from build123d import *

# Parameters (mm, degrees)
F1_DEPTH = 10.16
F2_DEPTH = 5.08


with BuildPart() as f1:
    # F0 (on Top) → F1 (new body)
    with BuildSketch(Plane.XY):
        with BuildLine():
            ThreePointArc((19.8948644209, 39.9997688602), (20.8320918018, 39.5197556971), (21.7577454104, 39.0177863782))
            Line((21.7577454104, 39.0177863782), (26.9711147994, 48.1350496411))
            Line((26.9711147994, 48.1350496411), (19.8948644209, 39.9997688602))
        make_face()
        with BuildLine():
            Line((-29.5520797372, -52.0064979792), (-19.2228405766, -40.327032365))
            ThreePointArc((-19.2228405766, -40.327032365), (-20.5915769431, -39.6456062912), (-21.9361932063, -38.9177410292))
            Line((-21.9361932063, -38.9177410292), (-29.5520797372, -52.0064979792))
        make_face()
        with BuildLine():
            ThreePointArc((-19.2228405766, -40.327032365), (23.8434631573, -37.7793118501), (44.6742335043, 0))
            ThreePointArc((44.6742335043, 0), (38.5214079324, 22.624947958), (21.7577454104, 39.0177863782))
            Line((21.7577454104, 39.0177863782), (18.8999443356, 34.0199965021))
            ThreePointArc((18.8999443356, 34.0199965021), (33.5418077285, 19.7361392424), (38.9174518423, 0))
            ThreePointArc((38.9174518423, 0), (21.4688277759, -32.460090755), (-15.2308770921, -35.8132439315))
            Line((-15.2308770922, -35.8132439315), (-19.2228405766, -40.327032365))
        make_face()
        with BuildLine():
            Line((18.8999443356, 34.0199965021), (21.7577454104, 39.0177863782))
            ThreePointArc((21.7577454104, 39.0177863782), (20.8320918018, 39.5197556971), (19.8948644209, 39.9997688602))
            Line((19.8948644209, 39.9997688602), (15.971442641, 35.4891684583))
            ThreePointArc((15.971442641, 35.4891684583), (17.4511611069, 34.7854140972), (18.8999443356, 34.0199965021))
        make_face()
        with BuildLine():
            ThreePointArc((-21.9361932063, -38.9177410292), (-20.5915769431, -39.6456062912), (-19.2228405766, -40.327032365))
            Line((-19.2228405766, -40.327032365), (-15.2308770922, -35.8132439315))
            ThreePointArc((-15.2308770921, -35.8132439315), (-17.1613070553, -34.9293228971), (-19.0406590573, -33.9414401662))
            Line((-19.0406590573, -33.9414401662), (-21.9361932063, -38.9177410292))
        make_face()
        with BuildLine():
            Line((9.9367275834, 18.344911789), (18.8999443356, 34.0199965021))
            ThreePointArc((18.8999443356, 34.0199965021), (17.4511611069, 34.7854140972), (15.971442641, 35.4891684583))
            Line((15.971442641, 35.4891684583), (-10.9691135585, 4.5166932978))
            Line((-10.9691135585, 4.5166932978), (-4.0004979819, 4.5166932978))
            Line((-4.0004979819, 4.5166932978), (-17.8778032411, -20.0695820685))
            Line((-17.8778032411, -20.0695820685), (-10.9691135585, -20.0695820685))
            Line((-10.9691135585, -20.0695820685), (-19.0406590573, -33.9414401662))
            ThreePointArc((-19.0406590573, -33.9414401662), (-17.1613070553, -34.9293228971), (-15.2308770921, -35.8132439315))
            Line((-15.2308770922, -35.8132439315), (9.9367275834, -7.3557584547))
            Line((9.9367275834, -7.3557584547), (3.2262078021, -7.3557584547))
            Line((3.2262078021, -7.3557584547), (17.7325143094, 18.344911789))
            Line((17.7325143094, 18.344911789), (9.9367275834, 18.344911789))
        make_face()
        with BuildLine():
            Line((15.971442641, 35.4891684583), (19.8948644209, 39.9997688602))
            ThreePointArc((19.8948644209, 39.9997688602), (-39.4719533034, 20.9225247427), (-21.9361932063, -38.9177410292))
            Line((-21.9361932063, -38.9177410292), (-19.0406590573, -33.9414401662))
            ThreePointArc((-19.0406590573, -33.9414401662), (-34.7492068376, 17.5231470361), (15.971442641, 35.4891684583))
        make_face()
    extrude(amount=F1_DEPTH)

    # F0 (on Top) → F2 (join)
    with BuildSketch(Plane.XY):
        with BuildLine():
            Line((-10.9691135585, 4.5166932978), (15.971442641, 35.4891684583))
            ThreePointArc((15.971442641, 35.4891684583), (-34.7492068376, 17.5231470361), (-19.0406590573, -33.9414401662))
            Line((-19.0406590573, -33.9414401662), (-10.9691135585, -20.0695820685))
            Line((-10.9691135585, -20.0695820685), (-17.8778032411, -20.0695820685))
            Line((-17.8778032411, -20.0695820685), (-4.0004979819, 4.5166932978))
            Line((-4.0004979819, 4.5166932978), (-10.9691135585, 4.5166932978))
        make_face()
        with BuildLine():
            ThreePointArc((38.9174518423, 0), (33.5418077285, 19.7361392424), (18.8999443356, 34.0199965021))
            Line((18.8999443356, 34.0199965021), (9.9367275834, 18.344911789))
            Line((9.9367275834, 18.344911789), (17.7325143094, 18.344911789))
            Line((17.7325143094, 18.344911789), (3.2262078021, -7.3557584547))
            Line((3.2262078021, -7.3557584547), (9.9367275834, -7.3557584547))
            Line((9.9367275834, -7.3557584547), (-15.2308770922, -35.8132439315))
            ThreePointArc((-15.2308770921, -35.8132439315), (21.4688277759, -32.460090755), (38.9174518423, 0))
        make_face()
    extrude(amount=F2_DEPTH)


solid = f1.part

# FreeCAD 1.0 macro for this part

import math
import FreeCAD as App
import Part
import Sketcher
from FreeCAD import Vector
Q = App.Units.Quantity

doc = App.newDocument("Part")
body = doc.addObject("PartDesign::Body", "Body")

sketch1 = body.newObject("Sketcher::SketchObject", "Sketch")
sketch1.AttachmentSupport = (doc.getObject("XY_Plane"), [""])
sketch1.MapMode = "FlatFace"
sketch1.addGeometry([
    Part.LineSegment(Vector(22, 39, 0), Vector(27, 48, 0)),
    Part.LineSegment(Vector(27, 48, 0), Vector(20, 40, 0)),
    Part.ArcOfCircle(Part.Circle(Vector(0, 0, 0), Vector(0, 0, 1), 45), math.radians(64), math.radians(241)),
    Part.LineSegment(Vector(-22, -39, 0), Vector(-30, -52, 0)),
    Part.LineSegment(Vector(-30, -52, 0), Vector(-19, -40, 0)),
    Part.ArcOfCircle(Part.Circle(Vector(0, 0, 0), Vector(0, 0, 1), 45), math.radians(-115), math.radians(61)),
    Part.LineSegment(Vector(16, 35, 0), Vector(-11, 5, 0)),
    Part.LineSegment(Vector(-11, 5, 0), Vector(-4, 5, 0)),
    Part.LineSegment(Vector(-4, 5, 0), Vector(-18, -20, 0)),
    Part.LineSegment(Vector(-18, -20, 0), Vector(-11, -20, 0)),
    Part.LineSegment(Vector(-11, -20, 0), Vector(-19, -34, 0)),
    Part.ArcOfCircle(Part.Circle(Vector(0, 0, 0), Vector(0, 0, 1), 39), math.radians(66), math.radians(241)),
    Part.ArcOfCircle(Part.Circle(Vector(0, 0, 0), Vector(0, 0, 1), 39), math.radians(0), math.radians(61)),
    Part.ArcOfCircle(Part.Circle(Vector(0, 0, 0), Vector(0, 0, 1), 39), math.radians(-113), math.radians(0)),
    Part.LineSegment(Vector(-15, -36, 0), Vector(10, -7, 0)),
    Part.LineSegment(Vector(10, -7, 0), Vector(3, -7, 0)),
    Part.LineSegment(Vector(3, -7, 0), Vector(18, 18, 0)),
    Part.LineSegment(Vector(18, 18, 0), Vector(10, 18, 0)),
    Part.LineSegment(Vector(10, 18, 0), Vector(19, 34, 0)),
], False)
sketch1.addConstraint([
    Sketcher.Constraint("Coincident", 0, 2, 1, 1),
    Sketcher.Constraint("Coincident", 1, 2, 2, 1),
    Sketcher.Constraint("Coincident", 2, 2, 3, 1),
    Sketcher.Constraint("Coincident", 3, 2, 4, 1),
    Sketcher.Constraint("Coincident", 4, 2, 5, 1),
    Sketcher.Constraint("Coincident", 5, 2, 0, 1),
    Sketcher.Constraint("Coincident", 6, 2, 7, 1),
    Sketcher.Constraint("Coincident", 7, 2, 8, 1),
    Sketcher.Constraint("Coincident", 8, 2, 9, 1),
    Sketcher.Constraint("Coincident", 9, 2, 10, 1),
    Sketcher.Constraint("Coincident", 10, 2, 11, 2),
    Sketcher.Constraint("Coincident", 11, 1, 6, 1),
    Sketcher.Constraint("Tangent", 12, 1, 13, 2),
    Sketcher.Constraint("Coincident", 13, 1, 14, 1),
    Sketcher.Constraint("Coincident", 14, 2, 15, 1),
    Sketcher.Constraint("Coincident", 15, 2, 16, 1),
    Sketcher.Constraint("Coincident", 16, 2, 17, 1),
    Sketcher.Constraint("Coincident", 17, 2, 18, 1),
    Sketcher.Constraint("Coincident", 18, 2, 12, 2),
    Sketcher.Constraint("Horizontal", 7),
    Sketcher.Constraint("Horizontal", 9),
    Sketcher.Constraint("Horizontal", 15),
    Sketcher.Constraint("Horizontal", 17),
    Sketcher.Constraint("Coincident", 2, 3, -1, 1),
    Sketcher.Constraint("Coincident", 5, 3, -1, 1),
    Sketcher.Constraint("Coincident", 11, 3, -1, 1),
    Sketcher.Constraint("Coincident", 12, 3, -1, 1),
    Sketcher.Constraint("Equal", 2, 5),
    Sketcher.Constraint("Equal", 11, 12),
    Sketcher.Constraint("Equal", 12, 13),
    Sketcher.Constraint("PointOnObject", 12, 1, -1),
    Sketcher.Constraint("Parallel", 1, 6),
    Sketcher.Constraint("Parallel", 3, 10),
    Sketcher.Constraint("Parallel", 4, 14),
    Sketcher.Constraint("Parallel", 8, 16),
    Sketcher.Constraint("Parallel", 0, 18),
    Sketcher.Constraint("Vertical", 6, 2, 9, 2),
    Sketcher.Constraint("Vertical", 14, 2, 17, 2),
    Sketcher.Constraint("Radius", 11, 38.917452),
    Sketcher.Constraint("DistanceY", 3, 2, -1, 1, Q("2.0474999 in")),
    Sketcher.Constraint("DistanceX", 7, 2, -1, 1, Q("0.1574999 in")),
    Sketcher.Constraint("Radius", 2, 44.674234),
    Sketcher.Constraint("DistanceX", 9, 1, 9, 2, 6.90869),
    Sketcher.Constraint("DistanceX", 15, 2, 15, 1, 6.71052),
    Sketcher.Constraint("DistanceY", 2, 2, 10, 2, 4.976301),
    Sketcher.Constraint("DistanceY", 11, 1, 1, 2, 4.5106),
    Sketcher.Constraint("DistanceX", 11, 1, 18, 2, 2.928502),
    Sketcher.Constraint("DistanceX", 18, 2, 5, 2, 2.857801),
    Sketcher.Constraint("Distance", 6, 41.049821),
    Sketcher.Constraint("Distance", 8, 28.232331),
    Sketcher.Constraint("DistanceX", 7, 1, 7, 2, 6.968616),
    Sketcher.Constraint("DistanceX", 17, 2, 17, 1, 7.795787),
    Sketcher.Constraint("DistanceY", -1, 1, 0, 2, 48.13505),
    Sketcher.Constraint("DistanceY", -1, 1, 1, 2, 39.999769),
    Sketcher.Constraint("DistanceY", 2, 2, -1, 1, 38.917741),
    Sketcher.Constraint("DistanceX", 4, 2, -1, 1, 19.222841),
    Sketcher.Constraint("DistanceY", 14, 2, -1, 1, 7.355758),
])
pad1 = body.newObject("PartDesign::Pad", "Pad")
pad1.Profile = sketch1
pad1.Length = Q("0.4 in")

sketch2 = body.newObject("Sketcher::SketchObject", "Sketch001")
sketch2.AttachmentSupport = (doc.getObject("XY_Plane"), [""])
sketch2.MapMode = "FlatFace"
sketch2.addGeometry([
    Part.LineSegment(Vector(-11, 5, 0), Vector(16, 35, 0)),
    Part.ArcOfCircle(Part.Circle(Vector(0, 0, 0), Vector(0, 0, 1), 39), math.radians(66), math.radians(241)),
    Part.LineSegment(Vector(-19, -34, 0), Vector(-11, -20, 0)),
    Part.LineSegment(Vector(-11, -20, 0), Vector(-18, -20, 0)),
    Part.LineSegment(Vector(-18, -20, 0), Vector(-4, 5, 0)),
    Part.LineSegment(Vector(-4, 5, 0), Vector(-11, 5, 0)),
    Part.ArcOfCircle(Part.Circle(Vector(0, 0, 0), Vector(0, 0, 1), 39), math.radians(0), math.radians(61)),
    Part.LineSegment(Vector(19, 34, 0), Vector(10, 18, 0)),
    Part.LineSegment(Vector(10, 18, 0), Vector(18, 18, 0)),
    Part.LineSegment(Vector(18, 18, 0), Vector(3, -7, 0)),
    Part.LineSegment(Vector(3, -7, 0), Vector(10, -7, 0)),
    Part.LineSegment(Vector(10, -7, 0), Vector(-15, -36, 0)),
    Part.ArcOfCircle(Part.Circle(Vector(0, 0, 0), Vector(0, 0, 1), 39), math.radians(-113), math.radians(0)),
], False)
sketch2.addConstraint([
    Sketcher.Constraint("Coincident", 0, 2, 1, 1),
    Sketcher.Constraint("Coincident", 1, 2, 2, 1),
    Sketcher.Constraint("Coincident", 2, 2, 3, 1),
    Sketcher.Constraint("Coincident", 3, 2, 4, 1),
    Sketcher.Constraint("Coincident", 4, 2, 5, 1),
    Sketcher.Constraint("Coincident", 5, 2, 0, 1),
    Sketcher.Constraint("Coincident", 6, 2, 7, 1),
    Sketcher.Constraint("Coincident", 7, 2, 8, 1),
    Sketcher.Constraint("Coincident", 8, 2, 9, 1),
    Sketcher.Constraint("Coincident", 9, 2, 10, 1),
    Sketcher.Constraint("Coincident", 10, 2, 11, 1),
    Sketcher.Constraint("Coincident", 11, 2, 12, 1),
    Sketcher.Constraint("Tangent", 12, 2, 6, 1),
    Sketcher.Constraint("Horizontal", 3),
    Sketcher.Constraint("Horizontal", 5),
    Sketcher.Constraint("Horizontal", 8),
    Sketcher.Constraint("Horizontal", 10),
    Sketcher.Constraint("Coincident", 1, 3, -1, 1),
    Sketcher.Constraint("Coincident", 6, 3, -1, 1),
    Sketcher.Constraint("Equal", 1, 6),
    Sketcher.Constraint("Equal", 6, 12),
    Sketcher.Constraint("PointOnObject", 12, 2, -1),
    Sketcher.Constraint("Parallel", 4, 9),
    Sketcher.Constraint("Vertical", 2, 2, 5, 2),
    Sketcher.Constraint("Vertical", 7, 2, 10, 2),
    Sketcher.Constraint("Radius", 1, 38.917452),
    Sketcher.Constraint("DistanceX", 4, 2, -1, 1, Q("0.1574999 in")),
    Sketcher.Constraint("DistanceX", 3, 2, 3, 1, 6.90869),
    Sketcher.Constraint("DistanceX", 10, 1, 10, 2, 6.71052),
    Sketcher.Constraint("DistanceX", 1, 2, 0, 2, 35.012102),
    Sketcher.Constraint("DistanceX", 0, 2, 6, 2, 2.928502),
    Sketcher.Constraint("Distance", 0, 41.049821),
    Sketcher.Constraint("Distance", 4, 28.232331),
    Sketcher.Constraint("DistanceX", 5, 2, 5, 1, 6.968616),
    Sketcher.Constraint("DistanceX", 8, 1, 8, 2, 7.795787),
    Sketcher.Constraint("DistanceY", -1, 1, 0, 2, 35.489168),
    Sketcher.Constraint("DistanceY", -1, 1, 7, 2, 18.344912),
    Sketcher.Constraint("DistanceX", 8, 2, 6, 2, 1.16743),
    Sketcher.Constraint("DistanceX", 1, 2, 11, 2, 3.809782),
])
pad2 = body.newObject("PartDesign::Pad", "Pad001")
pad2.Profile = sketch2
pad2.Length = Q("0.2 in")

doc.recompute()
